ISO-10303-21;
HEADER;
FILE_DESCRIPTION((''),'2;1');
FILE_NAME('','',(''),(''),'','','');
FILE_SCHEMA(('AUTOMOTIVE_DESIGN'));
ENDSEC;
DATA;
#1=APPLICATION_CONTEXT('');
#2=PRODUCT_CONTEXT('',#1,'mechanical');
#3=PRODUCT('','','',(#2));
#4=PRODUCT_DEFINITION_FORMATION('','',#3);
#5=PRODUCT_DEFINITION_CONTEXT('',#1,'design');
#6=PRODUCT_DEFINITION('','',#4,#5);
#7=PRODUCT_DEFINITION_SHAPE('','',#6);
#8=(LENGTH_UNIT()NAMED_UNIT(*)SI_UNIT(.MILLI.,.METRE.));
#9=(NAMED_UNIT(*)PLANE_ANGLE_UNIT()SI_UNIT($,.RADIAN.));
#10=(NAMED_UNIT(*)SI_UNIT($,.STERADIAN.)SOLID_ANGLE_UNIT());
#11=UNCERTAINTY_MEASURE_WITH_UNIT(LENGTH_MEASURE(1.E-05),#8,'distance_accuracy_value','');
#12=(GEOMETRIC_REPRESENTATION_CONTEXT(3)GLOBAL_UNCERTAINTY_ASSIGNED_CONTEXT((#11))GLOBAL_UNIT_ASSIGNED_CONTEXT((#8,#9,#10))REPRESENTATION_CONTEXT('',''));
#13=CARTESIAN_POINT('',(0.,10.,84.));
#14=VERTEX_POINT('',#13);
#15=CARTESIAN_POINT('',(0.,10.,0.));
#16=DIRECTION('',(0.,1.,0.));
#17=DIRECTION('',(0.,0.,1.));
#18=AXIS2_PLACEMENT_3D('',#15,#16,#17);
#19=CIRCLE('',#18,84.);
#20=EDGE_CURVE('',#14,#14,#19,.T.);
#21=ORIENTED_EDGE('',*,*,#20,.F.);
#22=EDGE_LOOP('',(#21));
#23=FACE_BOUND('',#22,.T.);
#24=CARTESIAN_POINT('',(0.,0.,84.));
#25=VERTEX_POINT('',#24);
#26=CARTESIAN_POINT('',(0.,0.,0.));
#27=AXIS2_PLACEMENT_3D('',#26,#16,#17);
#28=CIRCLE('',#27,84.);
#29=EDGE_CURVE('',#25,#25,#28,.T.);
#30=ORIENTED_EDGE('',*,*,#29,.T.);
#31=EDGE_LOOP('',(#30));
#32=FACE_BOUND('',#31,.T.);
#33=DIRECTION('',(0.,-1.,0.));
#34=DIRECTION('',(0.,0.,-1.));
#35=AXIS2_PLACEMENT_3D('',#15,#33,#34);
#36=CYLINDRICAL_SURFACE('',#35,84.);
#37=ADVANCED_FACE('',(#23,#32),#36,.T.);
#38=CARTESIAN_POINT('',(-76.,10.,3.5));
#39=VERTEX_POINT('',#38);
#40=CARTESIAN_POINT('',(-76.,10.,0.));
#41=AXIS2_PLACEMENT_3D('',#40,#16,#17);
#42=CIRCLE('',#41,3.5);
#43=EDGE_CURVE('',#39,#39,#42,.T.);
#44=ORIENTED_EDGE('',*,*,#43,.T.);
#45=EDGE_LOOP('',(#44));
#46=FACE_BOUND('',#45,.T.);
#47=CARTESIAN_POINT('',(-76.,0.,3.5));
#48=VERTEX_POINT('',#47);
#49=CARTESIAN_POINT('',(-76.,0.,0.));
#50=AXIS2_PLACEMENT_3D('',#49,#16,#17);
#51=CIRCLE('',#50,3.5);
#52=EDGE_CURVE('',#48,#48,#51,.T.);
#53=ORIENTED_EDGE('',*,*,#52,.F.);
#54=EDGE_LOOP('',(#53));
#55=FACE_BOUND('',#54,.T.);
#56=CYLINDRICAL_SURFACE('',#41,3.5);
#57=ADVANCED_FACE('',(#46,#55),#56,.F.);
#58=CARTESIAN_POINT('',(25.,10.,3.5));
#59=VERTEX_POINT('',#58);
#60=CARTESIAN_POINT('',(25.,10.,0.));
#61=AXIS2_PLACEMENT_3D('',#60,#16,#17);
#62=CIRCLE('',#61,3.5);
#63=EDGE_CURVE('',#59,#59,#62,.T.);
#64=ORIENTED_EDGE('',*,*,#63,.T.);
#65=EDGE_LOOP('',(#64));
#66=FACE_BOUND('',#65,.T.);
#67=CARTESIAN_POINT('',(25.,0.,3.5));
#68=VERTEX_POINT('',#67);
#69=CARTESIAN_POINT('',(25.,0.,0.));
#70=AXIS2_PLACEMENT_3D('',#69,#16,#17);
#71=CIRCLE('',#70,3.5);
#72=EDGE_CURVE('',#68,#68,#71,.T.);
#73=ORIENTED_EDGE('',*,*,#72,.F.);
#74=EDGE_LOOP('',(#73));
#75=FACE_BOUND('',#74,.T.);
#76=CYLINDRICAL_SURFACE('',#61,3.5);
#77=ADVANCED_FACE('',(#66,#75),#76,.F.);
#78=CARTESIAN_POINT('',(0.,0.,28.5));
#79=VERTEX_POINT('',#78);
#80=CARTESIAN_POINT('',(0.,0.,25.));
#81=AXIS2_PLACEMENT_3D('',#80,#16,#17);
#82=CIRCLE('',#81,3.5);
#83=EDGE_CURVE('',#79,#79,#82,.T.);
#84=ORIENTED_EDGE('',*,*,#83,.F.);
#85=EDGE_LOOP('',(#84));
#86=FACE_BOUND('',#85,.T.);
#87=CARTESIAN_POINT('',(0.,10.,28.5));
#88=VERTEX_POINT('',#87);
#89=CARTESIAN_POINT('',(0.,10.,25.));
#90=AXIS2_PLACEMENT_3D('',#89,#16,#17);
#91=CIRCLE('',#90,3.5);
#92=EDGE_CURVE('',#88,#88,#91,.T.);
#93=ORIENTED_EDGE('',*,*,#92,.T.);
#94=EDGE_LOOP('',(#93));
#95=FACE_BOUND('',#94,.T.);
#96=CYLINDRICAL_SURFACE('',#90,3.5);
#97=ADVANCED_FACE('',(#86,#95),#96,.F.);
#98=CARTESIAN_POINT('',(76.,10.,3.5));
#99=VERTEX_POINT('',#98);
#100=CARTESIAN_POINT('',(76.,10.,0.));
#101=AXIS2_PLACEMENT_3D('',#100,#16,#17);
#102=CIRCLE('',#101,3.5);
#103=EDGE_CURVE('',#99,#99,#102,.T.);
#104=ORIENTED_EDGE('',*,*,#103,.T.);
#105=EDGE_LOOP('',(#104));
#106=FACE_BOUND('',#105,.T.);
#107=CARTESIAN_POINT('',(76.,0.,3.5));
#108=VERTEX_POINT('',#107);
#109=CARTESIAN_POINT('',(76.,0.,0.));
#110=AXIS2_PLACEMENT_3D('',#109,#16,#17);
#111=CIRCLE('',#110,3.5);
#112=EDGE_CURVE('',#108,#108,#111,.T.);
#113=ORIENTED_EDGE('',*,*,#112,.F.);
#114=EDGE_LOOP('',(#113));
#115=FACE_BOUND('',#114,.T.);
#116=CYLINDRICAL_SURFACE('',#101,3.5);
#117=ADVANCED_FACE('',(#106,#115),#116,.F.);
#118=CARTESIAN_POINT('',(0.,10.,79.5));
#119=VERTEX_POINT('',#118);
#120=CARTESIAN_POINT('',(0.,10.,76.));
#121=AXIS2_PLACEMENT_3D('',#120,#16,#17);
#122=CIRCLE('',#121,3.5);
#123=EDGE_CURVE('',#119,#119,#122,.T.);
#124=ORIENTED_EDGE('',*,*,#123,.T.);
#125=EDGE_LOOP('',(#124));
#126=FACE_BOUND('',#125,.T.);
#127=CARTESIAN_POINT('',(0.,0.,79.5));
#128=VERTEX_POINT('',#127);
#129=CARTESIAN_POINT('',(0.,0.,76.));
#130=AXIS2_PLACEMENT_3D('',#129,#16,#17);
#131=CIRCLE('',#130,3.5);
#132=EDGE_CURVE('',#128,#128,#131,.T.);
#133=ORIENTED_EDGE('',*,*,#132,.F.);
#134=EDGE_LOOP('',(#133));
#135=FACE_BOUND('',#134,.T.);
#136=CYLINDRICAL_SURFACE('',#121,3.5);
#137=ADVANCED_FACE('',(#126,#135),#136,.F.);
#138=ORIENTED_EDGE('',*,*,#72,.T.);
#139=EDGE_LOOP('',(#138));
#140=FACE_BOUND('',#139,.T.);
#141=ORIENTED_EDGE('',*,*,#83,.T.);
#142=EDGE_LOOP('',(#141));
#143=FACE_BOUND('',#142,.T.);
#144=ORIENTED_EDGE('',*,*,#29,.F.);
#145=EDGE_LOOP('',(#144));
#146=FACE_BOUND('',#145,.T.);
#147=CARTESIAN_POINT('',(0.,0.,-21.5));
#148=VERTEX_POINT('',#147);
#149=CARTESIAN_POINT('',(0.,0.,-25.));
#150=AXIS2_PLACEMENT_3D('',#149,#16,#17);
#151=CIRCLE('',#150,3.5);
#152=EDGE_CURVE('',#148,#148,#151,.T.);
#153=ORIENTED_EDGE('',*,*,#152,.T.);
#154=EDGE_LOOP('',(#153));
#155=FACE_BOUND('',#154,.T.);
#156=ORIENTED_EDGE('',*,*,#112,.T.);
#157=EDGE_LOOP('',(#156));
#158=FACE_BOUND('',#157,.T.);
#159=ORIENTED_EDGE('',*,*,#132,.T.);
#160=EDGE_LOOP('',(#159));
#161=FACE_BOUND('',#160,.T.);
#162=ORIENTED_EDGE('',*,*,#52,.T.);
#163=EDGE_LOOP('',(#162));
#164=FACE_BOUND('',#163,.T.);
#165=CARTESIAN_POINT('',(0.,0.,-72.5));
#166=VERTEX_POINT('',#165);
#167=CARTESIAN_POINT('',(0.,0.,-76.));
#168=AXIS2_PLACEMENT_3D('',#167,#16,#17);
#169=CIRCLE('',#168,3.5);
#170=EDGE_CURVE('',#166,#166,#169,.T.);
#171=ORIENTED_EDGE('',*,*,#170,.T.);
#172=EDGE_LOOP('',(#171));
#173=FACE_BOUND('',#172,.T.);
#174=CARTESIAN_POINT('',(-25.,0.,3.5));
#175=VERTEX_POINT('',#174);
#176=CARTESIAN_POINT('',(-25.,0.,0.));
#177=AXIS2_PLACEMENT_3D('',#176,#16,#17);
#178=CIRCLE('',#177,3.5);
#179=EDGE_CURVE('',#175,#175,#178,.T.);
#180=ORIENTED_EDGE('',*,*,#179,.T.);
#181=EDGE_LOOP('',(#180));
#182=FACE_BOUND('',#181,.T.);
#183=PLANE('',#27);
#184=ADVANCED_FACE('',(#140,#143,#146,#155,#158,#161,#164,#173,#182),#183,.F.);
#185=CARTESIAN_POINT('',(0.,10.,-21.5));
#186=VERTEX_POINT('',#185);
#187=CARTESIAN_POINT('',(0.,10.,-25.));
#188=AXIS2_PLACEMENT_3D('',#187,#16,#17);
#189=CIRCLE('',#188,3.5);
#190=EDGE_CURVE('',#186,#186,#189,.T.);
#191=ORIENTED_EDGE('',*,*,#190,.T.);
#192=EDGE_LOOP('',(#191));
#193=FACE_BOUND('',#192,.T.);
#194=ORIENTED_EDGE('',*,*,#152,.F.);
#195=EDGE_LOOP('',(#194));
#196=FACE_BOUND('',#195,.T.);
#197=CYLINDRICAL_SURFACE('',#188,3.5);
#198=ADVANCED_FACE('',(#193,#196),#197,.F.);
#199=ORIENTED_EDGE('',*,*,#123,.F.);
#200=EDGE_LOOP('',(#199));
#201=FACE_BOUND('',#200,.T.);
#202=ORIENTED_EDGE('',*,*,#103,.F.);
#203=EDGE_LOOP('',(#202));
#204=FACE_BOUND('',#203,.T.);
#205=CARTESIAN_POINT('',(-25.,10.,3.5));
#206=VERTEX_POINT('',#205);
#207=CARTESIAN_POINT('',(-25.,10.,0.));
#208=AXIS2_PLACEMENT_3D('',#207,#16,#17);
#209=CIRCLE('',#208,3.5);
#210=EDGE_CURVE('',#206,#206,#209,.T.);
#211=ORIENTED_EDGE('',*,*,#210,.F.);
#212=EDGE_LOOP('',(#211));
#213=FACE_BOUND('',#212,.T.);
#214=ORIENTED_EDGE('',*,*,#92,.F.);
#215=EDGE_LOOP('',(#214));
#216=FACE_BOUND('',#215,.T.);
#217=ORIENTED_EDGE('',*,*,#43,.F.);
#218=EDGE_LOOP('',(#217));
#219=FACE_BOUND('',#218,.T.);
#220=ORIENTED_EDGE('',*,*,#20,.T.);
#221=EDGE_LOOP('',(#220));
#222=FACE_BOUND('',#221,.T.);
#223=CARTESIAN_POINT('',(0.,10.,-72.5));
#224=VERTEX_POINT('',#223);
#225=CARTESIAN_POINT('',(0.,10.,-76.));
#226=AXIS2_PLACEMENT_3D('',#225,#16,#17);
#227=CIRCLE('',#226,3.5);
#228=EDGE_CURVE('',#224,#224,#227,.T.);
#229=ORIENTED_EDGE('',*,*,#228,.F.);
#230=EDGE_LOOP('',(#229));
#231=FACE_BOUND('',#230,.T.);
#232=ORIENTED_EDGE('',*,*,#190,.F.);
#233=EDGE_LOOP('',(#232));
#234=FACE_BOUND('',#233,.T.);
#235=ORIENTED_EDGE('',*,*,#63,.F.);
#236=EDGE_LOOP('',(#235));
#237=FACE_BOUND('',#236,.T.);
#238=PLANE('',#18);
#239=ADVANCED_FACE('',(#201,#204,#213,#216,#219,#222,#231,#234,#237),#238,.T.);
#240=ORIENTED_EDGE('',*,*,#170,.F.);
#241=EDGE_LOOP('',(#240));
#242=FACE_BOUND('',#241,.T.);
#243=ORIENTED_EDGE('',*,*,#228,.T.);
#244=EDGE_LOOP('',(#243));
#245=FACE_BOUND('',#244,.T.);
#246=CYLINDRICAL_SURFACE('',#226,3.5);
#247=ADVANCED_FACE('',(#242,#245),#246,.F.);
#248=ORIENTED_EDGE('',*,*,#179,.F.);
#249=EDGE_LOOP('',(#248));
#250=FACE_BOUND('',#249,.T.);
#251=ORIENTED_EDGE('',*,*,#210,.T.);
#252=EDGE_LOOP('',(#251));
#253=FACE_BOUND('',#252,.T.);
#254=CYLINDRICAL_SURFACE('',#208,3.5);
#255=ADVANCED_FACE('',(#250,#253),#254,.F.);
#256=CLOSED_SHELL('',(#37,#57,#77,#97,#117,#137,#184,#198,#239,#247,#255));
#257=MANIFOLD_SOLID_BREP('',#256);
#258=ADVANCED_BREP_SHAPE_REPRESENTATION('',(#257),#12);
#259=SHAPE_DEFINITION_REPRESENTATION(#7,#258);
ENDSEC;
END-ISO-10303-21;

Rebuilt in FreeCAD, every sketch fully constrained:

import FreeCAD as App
import Part
import Sketcher
from FreeCAD import Vector

doc = App.newDocument("Part")
body = doc.addObject("PartDesign::Body", "Body")

sketch1 = body.newObject("Sketcher::SketchObject", "Sketch")
sketch1.AttachmentSupport = (doc.getObject("XZ_Plane"), [""])
sketch1.MapMode = "FlatFace"
sketch1.addGeometry(Part.Circle(Vector(0, 0, 0), Vector(0, 0, 1), 84), False)
sketch1.addConstraint(Sketcher.Constraint("Coincident", 0, 3, -1, 1))
sketch1.addConstraint(Sketcher.Constraint("Diameter", 0, 168.0))
pad1 = body.newObject("PartDesign::Pad", "Pad")
pad1.Profile = sketch1
pad1.Length = 10
pad1.Reversed = True

sketch2 = body.newObject("Sketcher::SketchObject", "Sketch001")
sketch2.AttachmentSupport = (doc.getObject("XZ_Plane"), [""])
sketch2.MapMode = "FlatFace"
sketch2.AttachmentOffset = App.Placement(Vector(0, 0, -10), App.Rotation())
sketch2.addGeometry(Part.Circle(Vector(0, -76, 0), Vector(0, 0, 1), 3.5), False)
sketch2.addGeometry(Part.Circle(Vector(-76, 0, 0), Vector(0, 0, 1), 3.5), False)
sketch2.addGeometry(Part.Circle(Vector(76, 0, 0), Vector(0, 0, 1), 3.5), False)
sketch2.addGeometry(Part.Circle(Vector(25, 0, 0), Vector(0, 0, 1), 3.5), False)
sketch2.addGeometry(Part.Circle(Vector(0, -25, 0), Vector(0, 0, 1), 3.5), False)
sketch2.addGeometry(Part.Circle(Vector(-25, 0, 0), Vector(0, 0, 1), 3.5), False)
sketch2.addGeometry(Part.Circle(Vector(0, 25, 0), Vector(0, 0, 1), 3.5), False)
sketch2.addGeometry(Part.Circle(Vector(0, 76, 0), Vector(0, 0, 1), 3.5), False)
sketch2.addConstraint(Sketcher.Constraint("Equal", 0, 1))
sketch2.addConstraint(Sketcher.Constraint("Equal", 1, 2))
sketch2.addConstraint(Sketcher.Constraint("Equal", 2, 3))
sketch2.addConstraint(Sketcher.Constraint("Equal", 3, 4))
sketch2.addConstraint(Sketcher.Constraint("Equal", 4, 5))
sketch2.addConstraint(Sketcher.Constraint("Equal", 5, 6))
sketch2.addConstraint(Sketcher.Constraint("Equal", 6, 7))
sketch2.addConstraint(Sketcher.Constraint("Symmetric", 1, 3, 2, 3, -1, 1))
sketch2.addConstraint(Sketcher.Constraint("Symmetric", 3, 3, 5, 3, -1, 1))
sketch2.addConstraint(Sketcher.Constraint("Symmetric", 4, 3, 6, 3, -1, 1))
sketch2.addConstraint(Sketcher.Constraint("Symmetric", 0, 3, 7, 3, -1, 1))
sketch2.addConstraint(Sketcher.Constraint("PointOnObject", 0, 3, -2))
sketch2.addConstraint(Sketcher.Constraint("PointOnObject", 1, 3, -1))
sketch2.addConstraint(Sketcher.Constraint("PointOnObject", 3, 3, -1))
sketch2.addConstraint(Sketcher.Constraint("PointOnObject", 4, 3, -2))
sketch2.addConstraint(Sketcher.Constraint("Diameter", 0, 7.0))
sketch2.addConstraint(Sketcher.Constraint("DistanceY", 0, 3, -1, 1, 76.0))
sketch2.addConstraint(Sketcher.Constraint("DistanceX", 1, 3, -1, 1, 76.0))
sketch2.addConstraint(Sketcher.Constraint("DistanceX", -1, 1, 3, 3, 25.0))
sketch2.addConstraint(Sketcher.Constraint("DistanceY", 4, 3, -1, 1, 25.0))
doc.recompute()
hole = body.newObject("PartDesign::Hole", "Hole")
hole.Profile = sketch2
hole.ThreadType = "None"
hole.Diameter = 7
hole.DepthType = "ThroughAll"
hole.Reversed = True

doc.recompute()
